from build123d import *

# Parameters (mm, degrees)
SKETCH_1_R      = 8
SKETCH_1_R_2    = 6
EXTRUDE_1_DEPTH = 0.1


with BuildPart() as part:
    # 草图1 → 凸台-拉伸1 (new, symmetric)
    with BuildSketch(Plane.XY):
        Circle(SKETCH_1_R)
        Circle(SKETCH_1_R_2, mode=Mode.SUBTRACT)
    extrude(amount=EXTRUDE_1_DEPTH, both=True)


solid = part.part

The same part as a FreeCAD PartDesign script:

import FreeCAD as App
import Part
import Sketcher

V = App.Vector

doc = App.newDocument("Part")
params = doc.addObject("Spreadsheet::Sheet", "Params")
for row, (alias, value) in enumerate([
    ("sketch1_diameter", "16 mm"),
    ("sketch1_diameter2", "12 mm"),
    ("pad1_length", "0.2 mm"),
], start=1):
    params.set(f"A{row}", alias)
    params.set(f"B{row}", "=" + value)
    params.setAlias(f"B{row}", alias)

body = doc.addObject("PartDesign::Body", "Body")

sketch1 = body.newObject("Sketcher::SketchObject", "Sketch")
sketch1.AttachmentSupport = (doc.getObject("XY_Plane"), [""])
sketch1.MapMode = "FlatFace"
sketch1.addGeometry([
    Part.Circle(V(0, 0, 0), V(0, 0, 1), 8),
    Part.Circle(V(0, 0, 0), V(0, 0, 1), 6),
], False)
sketch1.addConstraint([
    Sketcher.Constraint("Coincident", 0, 3, -1, 1),
    Sketcher.Constraint("Coincident", 1, 3, -1, 1),
    Sketcher.Constraint("Diameter", 0, 16.0),
    Sketcher.Constraint("Diameter", 1, 12.0),
])
sketch1.setExpression("Constraints[2]", "Params.sketch1_diameter")
sketch1.setExpression("Constraints[3]", "Params.sketch1_diameter2")
pad1 = body.newObject("PartDesign::Pad", "Pad")
pad1.Profile = sketch1
pad1.setExpression("Length", "Params.pad1_length")
pad1.Midplane = True

doc.recompute()
